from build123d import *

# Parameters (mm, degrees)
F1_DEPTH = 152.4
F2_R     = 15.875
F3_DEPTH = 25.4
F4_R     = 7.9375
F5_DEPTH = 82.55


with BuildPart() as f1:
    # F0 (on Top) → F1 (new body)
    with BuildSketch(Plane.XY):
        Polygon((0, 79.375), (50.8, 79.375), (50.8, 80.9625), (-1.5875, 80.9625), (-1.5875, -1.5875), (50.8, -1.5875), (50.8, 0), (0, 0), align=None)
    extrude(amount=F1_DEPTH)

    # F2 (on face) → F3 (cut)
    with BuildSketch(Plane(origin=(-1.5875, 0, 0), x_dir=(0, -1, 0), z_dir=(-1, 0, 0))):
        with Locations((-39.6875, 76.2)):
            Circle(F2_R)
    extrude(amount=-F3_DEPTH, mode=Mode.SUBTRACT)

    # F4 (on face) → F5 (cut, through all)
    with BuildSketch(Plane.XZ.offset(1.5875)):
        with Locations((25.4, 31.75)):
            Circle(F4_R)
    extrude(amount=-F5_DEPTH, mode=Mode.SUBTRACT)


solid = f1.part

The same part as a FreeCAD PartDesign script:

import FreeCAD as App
import Part
import Sketcher
Q = App.Units.Quantity


def add_polygon(sketch, points):
    """Adds a closed chain of lines whose ends are joined by coincident constraints."""
    first, n = sketch.GeometryCount, len(points)
    for a, b in zip(points, points[1:] + points[:1]):
        sketch.addGeometry(Part.LineSegment(App.Vector(*a, 0), App.Vector(*b, 0)), False)
    for i in range(n):
        sketch.addConstraint(Sketcher.Constraint("Coincident", first + i, 2, first + (i + 1) % n, 1))

doc = App.newDocument("Part")
params = doc.addObject("Spreadsheet::Sheet", "Params")
for row, (alias, value) in enumerate([
    ("sketch1_width", "2 in"),
    ("sketch1_height", "3.25 in"),
    ("sketch1_width2", "2.0625 in"),
    ("sketch1_height2", "0.0625 in"),
    ("pad1_length", "6 in"),
    ("sketch2_diameter", "1.25 in"),
    ("pocket1_length", "1 in"),
    ("sketch3_diameter", "0.625 in"),
], start=1):
    params.set(f"A{row}", alias)
    params.set(f"B{row}", "=" + value)
    params.setAlias(f"B{row}", alias)

body = doc.addObject("PartDesign::Body", "Body")

sketch1 = body.newObject("Sketcher::SketchObject", "Sketch")
sketch1.AttachmentSupport = (doc.getObject("XY_Plane"), [""])
sketch1.MapMode = "FlatFace"
add_polygon(sketch1, [(0, 79.4), (50.8, 79.4), (50.8, 81), (-1.6, 81), (-1.6, -1.6), (50.8, -1.6), (50.8, 0), (0, 0)])
sketch1.addConstraint([
    Sketcher.Constraint("Horizontal", 0),
    Sketcher.Constraint("Vertical", 1),
    Sketcher.Constraint("Horizontal", 2),
    Sketcher.Constraint("Vertical", 3),
    Sketcher.Constraint("Horizontal", 4),
    Sketcher.Constraint("Vertical", 5),
    Sketcher.Constraint("Horizontal", 6),
    Sketcher.Constraint("Vertical", 7),
    Sketcher.Constraint("Coincident", 6, 2, -1, 1),
    Sketcher.Constraint("Vertical", 1, 2, 4, 2),
    Sketcher.Constraint("Equal", 1, 5),
    Sketcher.Constraint("DistanceX", 0, 1, 0, 2, Q("2 in")),
    Sketcher.Constraint("DistanceY", 3, 2, 3, 1, Q("3.25 in")),
    Sketcher.Constraint("DistanceX", 2, 2, 2, 1, Q("2.0625 in")),
    Sketcher.Constraint("DistanceY", 1, 1, 1, 2, Q("0.0625 in")),
])
sketch1.setExpression("Constraints[19]", "Params.sketch1_width")
sketch1.setExpression("Constraints[20]", "Params.sketch1_height")
sketch1.setExpression("Constraints[21]", "Params.sketch1_width2")
sketch1.setExpression("Constraints[22]", "Params.sketch1_height2")
pad1 = body.newObject("PartDesign::Pad", "Pad")
pad1.Profile = sketch1
pad1.setExpression("Length", "Params.pad1_length")

sketch2 = body.newObject("Sketcher::SketchObject", "Sketch001")
sketch2.AttachmentSupport = (doc.getObject("YZ_Plane"), [""])
sketch2.MapMode = "FlatFace"
sketch2.AttachmentOffset = App.Placement(App.Vector(0, 0, -0.0625 * 25.4), App.Rotation())
sketch2.addGeometry(Part.Circle(App.Vector(40, 76, 0), App.Vector(0, 0, 1), 16), False)
sketch2.addConstraint([
    Sketcher.Constraint("Diameter", 0, Q("1.25 in")),
    Sketcher.Constraint("DistanceY", -1, 1, 0, 3, Q("3 in")),
    Sketcher.Constraint("DistanceX", -1, 1, 0, 3, Q("1.5625 in")),
])
sketch2.setExpression("Constraints[0]", "Params.sketch2_diameter")
pocket1 = body.newObject("PartDesign::Pocket", "Pocket")
pocket1.Profile = sketch2
pocket1.setExpression("Length", "Params.pocket1_length")
pocket1.Reversed = True

sketch3 = body.newObject("Sketcher::SketchObject", "Sketch002")
sketch3.AttachmentSupport = (doc.getObject("XZ_Plane"), [""])
sketch3.MapMode = "FlatFace"
sketch3.AttachmentOffset = App.Placement(App.Vector(0, 0, 0.0625 * 25.4), App.Rotation())
sketch3.addGeometry(Part.Circle(App.Vector(25, 32, 0), App.Vector(0, 0, 1), 8), False)
sketch3.addConstraint([
    Sketcher.Constraint("Diameter", 0, Q("0.625 in")),
    Sketcher.Constraint("DistanceX", -1, 1, 0, 3, Q("1 in")),
    Sketcher.Constraint("DistanceY", -1, 1, 0, 3, Q("1.25 in")),
])
sketch3.setExpression("Constraints[0]", "Params.sketch3_diameter")
pocket2 = body.newObject("PartDesign::Pocket", "Pocket001")
pocket2.Profile = sketch3
pocket2.Type = "ThroughAll"

doc.recompute()
